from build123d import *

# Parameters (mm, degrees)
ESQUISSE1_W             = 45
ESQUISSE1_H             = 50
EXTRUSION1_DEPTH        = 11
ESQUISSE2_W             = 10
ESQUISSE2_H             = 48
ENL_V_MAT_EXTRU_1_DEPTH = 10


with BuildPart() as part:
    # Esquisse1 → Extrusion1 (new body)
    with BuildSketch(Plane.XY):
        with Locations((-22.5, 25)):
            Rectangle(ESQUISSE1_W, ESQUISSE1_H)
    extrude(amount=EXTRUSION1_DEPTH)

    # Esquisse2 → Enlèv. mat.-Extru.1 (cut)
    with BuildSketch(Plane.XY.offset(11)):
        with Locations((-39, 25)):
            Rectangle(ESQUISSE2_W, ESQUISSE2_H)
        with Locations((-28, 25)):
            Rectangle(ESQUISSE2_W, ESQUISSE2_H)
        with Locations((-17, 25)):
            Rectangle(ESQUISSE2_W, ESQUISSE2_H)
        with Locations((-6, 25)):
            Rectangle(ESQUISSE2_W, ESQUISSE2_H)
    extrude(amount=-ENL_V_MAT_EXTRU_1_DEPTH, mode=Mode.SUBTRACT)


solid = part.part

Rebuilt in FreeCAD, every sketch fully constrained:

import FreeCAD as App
import Part
import Sketcher
Q = App.Units.Quantity


def add_polygon(sketch, points):
    """Adds a closed chain of lines whose ends are joined by coincident constraints."""
    first, n = sketch.GeometryCount, len(points)
    for a, b in zip(points, points[1:] + points[:1]):
        sketch.addGeometry(Part.LineSegment(App.Vector(*a, 0), App.Vector(*b, 0)), False)
    for i in range(n):
        sketch.addConstraint(Sketcher.Constraint("Coincident", first + i, 2, first + (i + 1) % n, 1))

doc = App.newDocument("Part")
body = doc.addObject("PartDesign::Body", "Body")

# Sketch on XY plane
sketch1 = doc.addObject("Sketcher::SketchObject", "Sketch")
body.addObject(sketch1)
sketch1.AttachmentSupport = (doc.XY_Plane, [""])
sketch1.MapMode = "FlatFace"
add_polygon(sketch1, [(-45, 50), (-45, 0), (0, 0), (0, 50)])  # lines 0-3
sketch1.addConstraint(Sketcher.Constraint("Vertical", 0))
sketch1.addConstraint(Sketcher.Constraint("Horizontal", 1))
sketch1.addConstraint(Sketcher.Constraint("Vertical", 2))
sketch1.addConstraint(Sketcher.Constraint("Horizontal", 3))
sketch1.addConstraint(Sketcher.Constraint("Coincident", 1, 2, -1, 1))
sketch1.addConstraint(Sketcher.Constraint("DistanceX", 1, 1, 1, 2, Q("45 mm")))
sketch1.addConstraint(Sketcher.Constraint("DistanceY", 0, 2, 0, 1, Q("50 mm")))
pad1 = doc.addObject("PartDesign::Pad", "Pad")
body.addObject(pad1)
pad1.Profile = sketch1
pad1.Length = 11

# Sketch on XY plane
sketch2 = doc.addObject("Sketcher::SketchObject", "Sketch001")
body.addObject(sketch2)
sketch2.AttachmentSupport = (doc.XY_Plane, [""])
sketch2.MapMode = "FlatFace"
sketch2.AttachmentOffset = App.Placement(App.Vector(0, 0, 11), App.Rotation())
add_polygon(sketch2, [(-44, 49), (-44, 1), (-34, 1), (-34, 49)])  # lines 0-3
add_polygon(sketch2, [(-33, 49), (-33, 1), (-23, 1), (-23, 49)])  # lines 4-7
add_polygon(sketch2, [(-22, 49), (-22, 1), (-12, 1), (-12, 49)])  # lines 8-11
add_polygon(sketch2, [(-11, 49), (-11, 1), (-1, 1), (-1, 49)])  # lines 12-15
sketch2.addConstraint(Sketcher.Constraint("Vertical", 0))
sketch2.addConstraint(Sketcher.Constraint("Horizontal", 1))
sketch2.addConstraint(Sketcher.Constraint("Vertical", 2))
sketch2.addConstraint(Sketcher.Constraint("Horizontal", 3))
sketch2.addConstraint(Sketcher.Constraint("Vertical", 4))
sketch2.addConstraint(Sketcher.Constraint("Horizontal", 5))
sketch2.addConstraint(Sketcher.Constraint("Vertical", 6))
sketch2.addConstraint(Sketcher.Constraint("Horizontal", 7))
sketch2.addConstraint(Sketcher.Constraint("Vertical", 8))
sketch2.addConstraint(Sketcher.Constraint("Horizontal", 9))
sketch2.addConstraint(Sketcher.Constraint("Vertical", 10))
sketch2.addConstraint(Sketcher.Constraint("Horizontal", 11))
sketch2.addConstraint(Sketcher.Constraint("Vertical", 12))
sketch2.addConstraint(Sketcher.Constraint("Horizontal", 13))
sketch2.addConstraint(Sketcher.Constraint("Vertical", 14))
sketch2.addConstraint(Sketcher.Constraint("Horizontal", 15))
sketch2.addConstraint(Sketcher.Constraint("Horizontal", 1, 2, 4, 2))
sketch2.addConstraint(Sketcher.Constraint("Horizontal", 3, 2, 6, 2))
sketch2.addConstraint(Sketcher.Constraint("Horizontal", 5, 2, 8, 2))
sketch2.addConstraint(Sketcher.Constraint("Horizontal", 7, 2, 10, 2))
sketch2.addConstraint(Sketcher.Constraint("Horizontal", 9, 2, 12, 2))
sketch2.addConstraint(Sketcher.Constraint("Horizontal", 11, 2, 14, 2))
sketch2.addConstraint(Sketcher.Constraint("Equal", 3, 5))
sketch2.addConstraint(Sketcher.Constraint("Equal", 7, 9))
sketch2.addConstraint(Sketcher.Constraint("Equal", 11, 13))
sketch2.addConstraint(Sketcher.Constraint("DistanceX", 1, 1, 1, 2, Q("10 mm")))
sketch2.addConstraint(Sketcher.Constraint("DistanceY", 0, 2, 0, 1, Q("48 mm")))
sketch2.addConstraint(Sketcher.Constraint("DistanceX", 0, 2, -1, 1, Q("44 mm")))
sketch2.addConstraint(Sketcher.Constraint("DistanceY", -1, 1, 0, 2, Q("1 mm")))
sketch2.addConstraint(Sketcher.Constraint("DistanceX", 4, 2, -1, 1, Q("33 mm")))
sketch2.addConstraint(Sketcher.Constraint("DistanceX", 8, 2, -1, 1, Q("22 mm")))
sketch2.addConstraint(Sketcher.Constraint("DistanceX", 12, 2, -1, 1, Q("11 mm")))
pocket1 = doc.addObject("PartDesign::Pocket", "Pocket")
body.addObject(pocket1)
pocket1.Profile = sketch2
pocket1.Length = 10

doc.recompute()
